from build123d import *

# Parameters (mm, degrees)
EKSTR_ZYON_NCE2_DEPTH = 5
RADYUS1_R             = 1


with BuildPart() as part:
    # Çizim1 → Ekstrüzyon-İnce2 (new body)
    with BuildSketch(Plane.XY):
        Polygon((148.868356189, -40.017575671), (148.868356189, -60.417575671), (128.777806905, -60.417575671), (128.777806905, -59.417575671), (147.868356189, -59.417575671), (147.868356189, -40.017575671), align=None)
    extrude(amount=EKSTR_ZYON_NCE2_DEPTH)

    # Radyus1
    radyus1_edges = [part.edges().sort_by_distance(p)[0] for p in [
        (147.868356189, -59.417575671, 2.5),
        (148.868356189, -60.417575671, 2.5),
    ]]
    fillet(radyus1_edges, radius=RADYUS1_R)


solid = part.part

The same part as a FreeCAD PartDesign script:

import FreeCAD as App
import Part
import Sketcher
Q = App.Units.Quantity


def edges_at(feature, points):
    """Names of the edges that pass closest to the given points."""
    edges = feature.Shape.Edges
    near = lambda p: min(range(len(edges)), key=lambda i: edges[i].distToShape(Part.Vertex(*p))[0])
    return sorted({f"Edge{near(p) + 1}" for p in points})


def add_polygon(sketch, points):
    """Adds a closed chain of lines whose ends are joined by coincident constraints."""
    first, n = sketch.GeometryCount, len(points)
    for a, b in zip(points, points[1:] + points[:1]):
        sketch.addGeometry(Part.LineSegment(App.Vector(*a, 0), App.Vector(*b, 0)), False)
    for i in range(n):
        sketch.addConstraint(Sketcher.Constraint("Coincident", first + i, 2, first + (i + 1) % n, 1))

doc = App.newDocument("Part")
params = doc.addObject("Spreadsheet::Sheet", "Params")
for row, (alias, value) in enumerate([
    ("sketch1_width", "1 mm"),
    ("sketch1_height", "20.4 mm"),
    ("pad1_length", "5 mm"),
    ("fillet_radius", "1 mm"),
], start=1):
    params.set(f"A{row}", alias)
    params.set(f"B{row}", "=" + value)
    params.setAlias(f"B{row}", alias)

body = doc.addObject("PartDesign::Body", "Body")

# Sketch on XY plane
sketch1 = body.newObject("Sketcher::SketchObject", "Sketch")
sketch1.AttachmentSupport = (doc.getObject("XY_Plane"), [""])
sketch1.MapMode = "FlatFace"
add_polygon(sketch1, [(148.9, -60.4), (148.9, -40), (147.9, -40), (147.9, -59.4), (128.8, -59.4), (128.8, -60.4)])  # lines 0-5
sketch1.addConstraint(Sketcher.Constraint("Vertical", 0))
sketch1.addConstraint(Sketcher.Constraint("Horizontal", 1))
sketch1.addConstraint(Sketcher.Constraint("Vertical", 2))
sketch1.addConstraint(Sketcher.Constraint("Horizontal", 3))
sketch1.addConstraint(Sketcher.Constraint("Vertical", 4))
sketch1.addConstraint(Sketcher.Constraint("Horizontal", 5))
sketch1.addConstraint(Sketcher.Constraint("Equal", 1, 4))
sketch1.addConstraint(Sketcher.Constraint("DistanceX", 1, 2, 1, 1, Q("1 mm")))
sketch1.addConstraint(Sketcher.Constraint("DistanceY", 0, 1, 0, 2, Q("20.4 mm")))
sketch1.addConstraint(Sketcher.Constraint("DistanceX", 3, 2, 3, 1, Q("19.090549 mm")))
sketch1.addConstraint(Sketcher.Constraint("DistanceX", -1, 1, 0, 2, Q("148.868356 mm")))
sketch1.addConstraint(Sketcher.Constraint("DistanceY", 0, 2, -1, 1, Q("40.017576 mm")))
sketch1.setExpression("Constraints[13]", "Params.sketch1_width")
sketch1.setExpression("Constraints[14]", "Params.sketch1_height")
pad1 = body.newObject("PartDesign::Pad", "Pad")
pad1.Profile = sketch1
pad1.setExpression("Length", "Params.pad1_length")
doc.recompute()

fillet = body.newObject("PartDesign::Fillet", "Fillet")
fillet.Base = (pad1, edges_at(pad1, [(147.868, -59.418, 2.5), (148.868, -60.418, 2.5)]))
fillet.setExpression("Radius", "Params.fillet_radius")

doc.recompute()
